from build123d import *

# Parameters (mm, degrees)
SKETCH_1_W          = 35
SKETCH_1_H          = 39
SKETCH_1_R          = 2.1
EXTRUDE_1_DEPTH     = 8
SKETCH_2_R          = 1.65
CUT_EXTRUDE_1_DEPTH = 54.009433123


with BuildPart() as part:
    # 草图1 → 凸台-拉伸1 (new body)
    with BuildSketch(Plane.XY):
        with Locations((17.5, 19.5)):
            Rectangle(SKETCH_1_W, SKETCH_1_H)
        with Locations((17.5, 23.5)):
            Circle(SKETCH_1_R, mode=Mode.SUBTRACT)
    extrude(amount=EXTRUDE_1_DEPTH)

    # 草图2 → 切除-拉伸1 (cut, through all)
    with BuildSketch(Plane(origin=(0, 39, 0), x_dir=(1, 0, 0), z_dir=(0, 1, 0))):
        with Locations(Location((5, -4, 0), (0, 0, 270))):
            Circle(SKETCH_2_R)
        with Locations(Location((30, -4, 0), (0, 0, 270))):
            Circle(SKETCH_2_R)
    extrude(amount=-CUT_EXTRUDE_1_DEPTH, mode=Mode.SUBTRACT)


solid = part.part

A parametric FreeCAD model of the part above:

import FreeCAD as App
import Part
import Sketcher
Q = App.Units.Quantity

doc = App.newDocument("Part")
body = doc.addObject("PartDesign::Body", "Body")

sketch1 = body.newObject("Sketcher::SketchObject", "Sketch")
sketch1.AttachmentSupport = (doc.getObject("XY_Plane"), [""])
sketch1.MapMode = "FlatFace"
sketch1.addGeometry([
    Part.LineSegment(App.Vector(0, 39, 0), App.Vector(0, 0, 0)),
    Part.LineSegment(App.Vector(0, 0, 0), App.Vector(35, 0, 0)),
    Part.LineSegment(App.Vector(35, 0, 0), App.Vector(35, 39, 0)),
    Part.LineSegment(App.Vector(35, 39, 0), App.Vector(0, 39, 0)),
    Part.Circle(App.Vector(17.5, 23.5, 0), App.Vector(0, 0, 1), 2.1),
], False)
sketch1.addConstraint([
    Sketcher.Constraint("Coincident", 0, 2, 1, 1),
    Sketcher.Constraint("Coincident", 1, 2, 2, 1),
    Sketcher.Constraint("Coincident", 2, 2, 3, 1),
    Sketcher.Constraint("Coincident", 3, 2, 0, 1),
    Sketcher.Constraint("Vertical", 0),
    Sketcher.Constraint("Horizontal", 1),
    Sketcher.Constraint("Vertical", 2),
    Sketcher.Constraint("Horizontal", 3),
    Sketcher.Constraint("Coincident", 0, 2, -1, 1),
    Sketcher.Constraint("Diameter", 4, Q("4.2 mm")),
    Sketcher.Constraint("DistanceX", 1, 1, 1, 2, Q("35 mm")),
    Sketcher.Constraint("DistanceY", 0, 2, 0, 1, Q("39 mm")),
    Sketcher.Constraint("DistanceX", -1, 1, 4, 3, Q("17.5 mm")),
    Sketcher.Constraint("DistanceY", -1, 1, 4, 3, Q("23.5 mm")),
])
pad1 = body.newObject("PartDesign::Pad", "Pad")
pad1.Profile = sketch1
pad1.Length = 8

sketch2 = body.newObject("Sketcher::SketchObject", "Sketch001")
sketch2.AttachmentSupport = (doc.getObject("XZ_Plane"), [""])
sketch2.MapMode = "FlatFace"
sketch2.AttachmentOffset = App.Placement(App.Vector(0, 0, -39), App.Rotation())
sketch2.addGeometry([
    Part.Circle(App.Vector(5, 4, 0), App.Vector(0, 0, 1), 1.65),
    Part.Circle(App.Vector(30, 4, 0), App.Vector(0, 0, 1), 1.65),
], False)
sketch2.addConstraint([
    Sketcher.Constraint("Equal", 0, 1),
    Sketcher.Constraint("Horizontal", 0, 3, 1, 3),
    Sketcher.Constraint("Diameter", 0, Q("3.3 mm")),
    Sketcher.Constraint("DistanceX", -1, 1, 0, 3, Q("5 mm")),
    Sketcher.Constraint("DistanceY", -1, 1, 0, 3, Q("4 mm")),
    Sketcher.Constraint("DistanceX", -1, 1, 1, 3, Q("30 mm")),
])
pocket1 = body.newObject("PartDesign::Pocket", "Pocket")
pocket1.Profile = sketch2
pocket1.Type = "ThroughAll"
pocket1.Reversed = True

doc.recompute()
